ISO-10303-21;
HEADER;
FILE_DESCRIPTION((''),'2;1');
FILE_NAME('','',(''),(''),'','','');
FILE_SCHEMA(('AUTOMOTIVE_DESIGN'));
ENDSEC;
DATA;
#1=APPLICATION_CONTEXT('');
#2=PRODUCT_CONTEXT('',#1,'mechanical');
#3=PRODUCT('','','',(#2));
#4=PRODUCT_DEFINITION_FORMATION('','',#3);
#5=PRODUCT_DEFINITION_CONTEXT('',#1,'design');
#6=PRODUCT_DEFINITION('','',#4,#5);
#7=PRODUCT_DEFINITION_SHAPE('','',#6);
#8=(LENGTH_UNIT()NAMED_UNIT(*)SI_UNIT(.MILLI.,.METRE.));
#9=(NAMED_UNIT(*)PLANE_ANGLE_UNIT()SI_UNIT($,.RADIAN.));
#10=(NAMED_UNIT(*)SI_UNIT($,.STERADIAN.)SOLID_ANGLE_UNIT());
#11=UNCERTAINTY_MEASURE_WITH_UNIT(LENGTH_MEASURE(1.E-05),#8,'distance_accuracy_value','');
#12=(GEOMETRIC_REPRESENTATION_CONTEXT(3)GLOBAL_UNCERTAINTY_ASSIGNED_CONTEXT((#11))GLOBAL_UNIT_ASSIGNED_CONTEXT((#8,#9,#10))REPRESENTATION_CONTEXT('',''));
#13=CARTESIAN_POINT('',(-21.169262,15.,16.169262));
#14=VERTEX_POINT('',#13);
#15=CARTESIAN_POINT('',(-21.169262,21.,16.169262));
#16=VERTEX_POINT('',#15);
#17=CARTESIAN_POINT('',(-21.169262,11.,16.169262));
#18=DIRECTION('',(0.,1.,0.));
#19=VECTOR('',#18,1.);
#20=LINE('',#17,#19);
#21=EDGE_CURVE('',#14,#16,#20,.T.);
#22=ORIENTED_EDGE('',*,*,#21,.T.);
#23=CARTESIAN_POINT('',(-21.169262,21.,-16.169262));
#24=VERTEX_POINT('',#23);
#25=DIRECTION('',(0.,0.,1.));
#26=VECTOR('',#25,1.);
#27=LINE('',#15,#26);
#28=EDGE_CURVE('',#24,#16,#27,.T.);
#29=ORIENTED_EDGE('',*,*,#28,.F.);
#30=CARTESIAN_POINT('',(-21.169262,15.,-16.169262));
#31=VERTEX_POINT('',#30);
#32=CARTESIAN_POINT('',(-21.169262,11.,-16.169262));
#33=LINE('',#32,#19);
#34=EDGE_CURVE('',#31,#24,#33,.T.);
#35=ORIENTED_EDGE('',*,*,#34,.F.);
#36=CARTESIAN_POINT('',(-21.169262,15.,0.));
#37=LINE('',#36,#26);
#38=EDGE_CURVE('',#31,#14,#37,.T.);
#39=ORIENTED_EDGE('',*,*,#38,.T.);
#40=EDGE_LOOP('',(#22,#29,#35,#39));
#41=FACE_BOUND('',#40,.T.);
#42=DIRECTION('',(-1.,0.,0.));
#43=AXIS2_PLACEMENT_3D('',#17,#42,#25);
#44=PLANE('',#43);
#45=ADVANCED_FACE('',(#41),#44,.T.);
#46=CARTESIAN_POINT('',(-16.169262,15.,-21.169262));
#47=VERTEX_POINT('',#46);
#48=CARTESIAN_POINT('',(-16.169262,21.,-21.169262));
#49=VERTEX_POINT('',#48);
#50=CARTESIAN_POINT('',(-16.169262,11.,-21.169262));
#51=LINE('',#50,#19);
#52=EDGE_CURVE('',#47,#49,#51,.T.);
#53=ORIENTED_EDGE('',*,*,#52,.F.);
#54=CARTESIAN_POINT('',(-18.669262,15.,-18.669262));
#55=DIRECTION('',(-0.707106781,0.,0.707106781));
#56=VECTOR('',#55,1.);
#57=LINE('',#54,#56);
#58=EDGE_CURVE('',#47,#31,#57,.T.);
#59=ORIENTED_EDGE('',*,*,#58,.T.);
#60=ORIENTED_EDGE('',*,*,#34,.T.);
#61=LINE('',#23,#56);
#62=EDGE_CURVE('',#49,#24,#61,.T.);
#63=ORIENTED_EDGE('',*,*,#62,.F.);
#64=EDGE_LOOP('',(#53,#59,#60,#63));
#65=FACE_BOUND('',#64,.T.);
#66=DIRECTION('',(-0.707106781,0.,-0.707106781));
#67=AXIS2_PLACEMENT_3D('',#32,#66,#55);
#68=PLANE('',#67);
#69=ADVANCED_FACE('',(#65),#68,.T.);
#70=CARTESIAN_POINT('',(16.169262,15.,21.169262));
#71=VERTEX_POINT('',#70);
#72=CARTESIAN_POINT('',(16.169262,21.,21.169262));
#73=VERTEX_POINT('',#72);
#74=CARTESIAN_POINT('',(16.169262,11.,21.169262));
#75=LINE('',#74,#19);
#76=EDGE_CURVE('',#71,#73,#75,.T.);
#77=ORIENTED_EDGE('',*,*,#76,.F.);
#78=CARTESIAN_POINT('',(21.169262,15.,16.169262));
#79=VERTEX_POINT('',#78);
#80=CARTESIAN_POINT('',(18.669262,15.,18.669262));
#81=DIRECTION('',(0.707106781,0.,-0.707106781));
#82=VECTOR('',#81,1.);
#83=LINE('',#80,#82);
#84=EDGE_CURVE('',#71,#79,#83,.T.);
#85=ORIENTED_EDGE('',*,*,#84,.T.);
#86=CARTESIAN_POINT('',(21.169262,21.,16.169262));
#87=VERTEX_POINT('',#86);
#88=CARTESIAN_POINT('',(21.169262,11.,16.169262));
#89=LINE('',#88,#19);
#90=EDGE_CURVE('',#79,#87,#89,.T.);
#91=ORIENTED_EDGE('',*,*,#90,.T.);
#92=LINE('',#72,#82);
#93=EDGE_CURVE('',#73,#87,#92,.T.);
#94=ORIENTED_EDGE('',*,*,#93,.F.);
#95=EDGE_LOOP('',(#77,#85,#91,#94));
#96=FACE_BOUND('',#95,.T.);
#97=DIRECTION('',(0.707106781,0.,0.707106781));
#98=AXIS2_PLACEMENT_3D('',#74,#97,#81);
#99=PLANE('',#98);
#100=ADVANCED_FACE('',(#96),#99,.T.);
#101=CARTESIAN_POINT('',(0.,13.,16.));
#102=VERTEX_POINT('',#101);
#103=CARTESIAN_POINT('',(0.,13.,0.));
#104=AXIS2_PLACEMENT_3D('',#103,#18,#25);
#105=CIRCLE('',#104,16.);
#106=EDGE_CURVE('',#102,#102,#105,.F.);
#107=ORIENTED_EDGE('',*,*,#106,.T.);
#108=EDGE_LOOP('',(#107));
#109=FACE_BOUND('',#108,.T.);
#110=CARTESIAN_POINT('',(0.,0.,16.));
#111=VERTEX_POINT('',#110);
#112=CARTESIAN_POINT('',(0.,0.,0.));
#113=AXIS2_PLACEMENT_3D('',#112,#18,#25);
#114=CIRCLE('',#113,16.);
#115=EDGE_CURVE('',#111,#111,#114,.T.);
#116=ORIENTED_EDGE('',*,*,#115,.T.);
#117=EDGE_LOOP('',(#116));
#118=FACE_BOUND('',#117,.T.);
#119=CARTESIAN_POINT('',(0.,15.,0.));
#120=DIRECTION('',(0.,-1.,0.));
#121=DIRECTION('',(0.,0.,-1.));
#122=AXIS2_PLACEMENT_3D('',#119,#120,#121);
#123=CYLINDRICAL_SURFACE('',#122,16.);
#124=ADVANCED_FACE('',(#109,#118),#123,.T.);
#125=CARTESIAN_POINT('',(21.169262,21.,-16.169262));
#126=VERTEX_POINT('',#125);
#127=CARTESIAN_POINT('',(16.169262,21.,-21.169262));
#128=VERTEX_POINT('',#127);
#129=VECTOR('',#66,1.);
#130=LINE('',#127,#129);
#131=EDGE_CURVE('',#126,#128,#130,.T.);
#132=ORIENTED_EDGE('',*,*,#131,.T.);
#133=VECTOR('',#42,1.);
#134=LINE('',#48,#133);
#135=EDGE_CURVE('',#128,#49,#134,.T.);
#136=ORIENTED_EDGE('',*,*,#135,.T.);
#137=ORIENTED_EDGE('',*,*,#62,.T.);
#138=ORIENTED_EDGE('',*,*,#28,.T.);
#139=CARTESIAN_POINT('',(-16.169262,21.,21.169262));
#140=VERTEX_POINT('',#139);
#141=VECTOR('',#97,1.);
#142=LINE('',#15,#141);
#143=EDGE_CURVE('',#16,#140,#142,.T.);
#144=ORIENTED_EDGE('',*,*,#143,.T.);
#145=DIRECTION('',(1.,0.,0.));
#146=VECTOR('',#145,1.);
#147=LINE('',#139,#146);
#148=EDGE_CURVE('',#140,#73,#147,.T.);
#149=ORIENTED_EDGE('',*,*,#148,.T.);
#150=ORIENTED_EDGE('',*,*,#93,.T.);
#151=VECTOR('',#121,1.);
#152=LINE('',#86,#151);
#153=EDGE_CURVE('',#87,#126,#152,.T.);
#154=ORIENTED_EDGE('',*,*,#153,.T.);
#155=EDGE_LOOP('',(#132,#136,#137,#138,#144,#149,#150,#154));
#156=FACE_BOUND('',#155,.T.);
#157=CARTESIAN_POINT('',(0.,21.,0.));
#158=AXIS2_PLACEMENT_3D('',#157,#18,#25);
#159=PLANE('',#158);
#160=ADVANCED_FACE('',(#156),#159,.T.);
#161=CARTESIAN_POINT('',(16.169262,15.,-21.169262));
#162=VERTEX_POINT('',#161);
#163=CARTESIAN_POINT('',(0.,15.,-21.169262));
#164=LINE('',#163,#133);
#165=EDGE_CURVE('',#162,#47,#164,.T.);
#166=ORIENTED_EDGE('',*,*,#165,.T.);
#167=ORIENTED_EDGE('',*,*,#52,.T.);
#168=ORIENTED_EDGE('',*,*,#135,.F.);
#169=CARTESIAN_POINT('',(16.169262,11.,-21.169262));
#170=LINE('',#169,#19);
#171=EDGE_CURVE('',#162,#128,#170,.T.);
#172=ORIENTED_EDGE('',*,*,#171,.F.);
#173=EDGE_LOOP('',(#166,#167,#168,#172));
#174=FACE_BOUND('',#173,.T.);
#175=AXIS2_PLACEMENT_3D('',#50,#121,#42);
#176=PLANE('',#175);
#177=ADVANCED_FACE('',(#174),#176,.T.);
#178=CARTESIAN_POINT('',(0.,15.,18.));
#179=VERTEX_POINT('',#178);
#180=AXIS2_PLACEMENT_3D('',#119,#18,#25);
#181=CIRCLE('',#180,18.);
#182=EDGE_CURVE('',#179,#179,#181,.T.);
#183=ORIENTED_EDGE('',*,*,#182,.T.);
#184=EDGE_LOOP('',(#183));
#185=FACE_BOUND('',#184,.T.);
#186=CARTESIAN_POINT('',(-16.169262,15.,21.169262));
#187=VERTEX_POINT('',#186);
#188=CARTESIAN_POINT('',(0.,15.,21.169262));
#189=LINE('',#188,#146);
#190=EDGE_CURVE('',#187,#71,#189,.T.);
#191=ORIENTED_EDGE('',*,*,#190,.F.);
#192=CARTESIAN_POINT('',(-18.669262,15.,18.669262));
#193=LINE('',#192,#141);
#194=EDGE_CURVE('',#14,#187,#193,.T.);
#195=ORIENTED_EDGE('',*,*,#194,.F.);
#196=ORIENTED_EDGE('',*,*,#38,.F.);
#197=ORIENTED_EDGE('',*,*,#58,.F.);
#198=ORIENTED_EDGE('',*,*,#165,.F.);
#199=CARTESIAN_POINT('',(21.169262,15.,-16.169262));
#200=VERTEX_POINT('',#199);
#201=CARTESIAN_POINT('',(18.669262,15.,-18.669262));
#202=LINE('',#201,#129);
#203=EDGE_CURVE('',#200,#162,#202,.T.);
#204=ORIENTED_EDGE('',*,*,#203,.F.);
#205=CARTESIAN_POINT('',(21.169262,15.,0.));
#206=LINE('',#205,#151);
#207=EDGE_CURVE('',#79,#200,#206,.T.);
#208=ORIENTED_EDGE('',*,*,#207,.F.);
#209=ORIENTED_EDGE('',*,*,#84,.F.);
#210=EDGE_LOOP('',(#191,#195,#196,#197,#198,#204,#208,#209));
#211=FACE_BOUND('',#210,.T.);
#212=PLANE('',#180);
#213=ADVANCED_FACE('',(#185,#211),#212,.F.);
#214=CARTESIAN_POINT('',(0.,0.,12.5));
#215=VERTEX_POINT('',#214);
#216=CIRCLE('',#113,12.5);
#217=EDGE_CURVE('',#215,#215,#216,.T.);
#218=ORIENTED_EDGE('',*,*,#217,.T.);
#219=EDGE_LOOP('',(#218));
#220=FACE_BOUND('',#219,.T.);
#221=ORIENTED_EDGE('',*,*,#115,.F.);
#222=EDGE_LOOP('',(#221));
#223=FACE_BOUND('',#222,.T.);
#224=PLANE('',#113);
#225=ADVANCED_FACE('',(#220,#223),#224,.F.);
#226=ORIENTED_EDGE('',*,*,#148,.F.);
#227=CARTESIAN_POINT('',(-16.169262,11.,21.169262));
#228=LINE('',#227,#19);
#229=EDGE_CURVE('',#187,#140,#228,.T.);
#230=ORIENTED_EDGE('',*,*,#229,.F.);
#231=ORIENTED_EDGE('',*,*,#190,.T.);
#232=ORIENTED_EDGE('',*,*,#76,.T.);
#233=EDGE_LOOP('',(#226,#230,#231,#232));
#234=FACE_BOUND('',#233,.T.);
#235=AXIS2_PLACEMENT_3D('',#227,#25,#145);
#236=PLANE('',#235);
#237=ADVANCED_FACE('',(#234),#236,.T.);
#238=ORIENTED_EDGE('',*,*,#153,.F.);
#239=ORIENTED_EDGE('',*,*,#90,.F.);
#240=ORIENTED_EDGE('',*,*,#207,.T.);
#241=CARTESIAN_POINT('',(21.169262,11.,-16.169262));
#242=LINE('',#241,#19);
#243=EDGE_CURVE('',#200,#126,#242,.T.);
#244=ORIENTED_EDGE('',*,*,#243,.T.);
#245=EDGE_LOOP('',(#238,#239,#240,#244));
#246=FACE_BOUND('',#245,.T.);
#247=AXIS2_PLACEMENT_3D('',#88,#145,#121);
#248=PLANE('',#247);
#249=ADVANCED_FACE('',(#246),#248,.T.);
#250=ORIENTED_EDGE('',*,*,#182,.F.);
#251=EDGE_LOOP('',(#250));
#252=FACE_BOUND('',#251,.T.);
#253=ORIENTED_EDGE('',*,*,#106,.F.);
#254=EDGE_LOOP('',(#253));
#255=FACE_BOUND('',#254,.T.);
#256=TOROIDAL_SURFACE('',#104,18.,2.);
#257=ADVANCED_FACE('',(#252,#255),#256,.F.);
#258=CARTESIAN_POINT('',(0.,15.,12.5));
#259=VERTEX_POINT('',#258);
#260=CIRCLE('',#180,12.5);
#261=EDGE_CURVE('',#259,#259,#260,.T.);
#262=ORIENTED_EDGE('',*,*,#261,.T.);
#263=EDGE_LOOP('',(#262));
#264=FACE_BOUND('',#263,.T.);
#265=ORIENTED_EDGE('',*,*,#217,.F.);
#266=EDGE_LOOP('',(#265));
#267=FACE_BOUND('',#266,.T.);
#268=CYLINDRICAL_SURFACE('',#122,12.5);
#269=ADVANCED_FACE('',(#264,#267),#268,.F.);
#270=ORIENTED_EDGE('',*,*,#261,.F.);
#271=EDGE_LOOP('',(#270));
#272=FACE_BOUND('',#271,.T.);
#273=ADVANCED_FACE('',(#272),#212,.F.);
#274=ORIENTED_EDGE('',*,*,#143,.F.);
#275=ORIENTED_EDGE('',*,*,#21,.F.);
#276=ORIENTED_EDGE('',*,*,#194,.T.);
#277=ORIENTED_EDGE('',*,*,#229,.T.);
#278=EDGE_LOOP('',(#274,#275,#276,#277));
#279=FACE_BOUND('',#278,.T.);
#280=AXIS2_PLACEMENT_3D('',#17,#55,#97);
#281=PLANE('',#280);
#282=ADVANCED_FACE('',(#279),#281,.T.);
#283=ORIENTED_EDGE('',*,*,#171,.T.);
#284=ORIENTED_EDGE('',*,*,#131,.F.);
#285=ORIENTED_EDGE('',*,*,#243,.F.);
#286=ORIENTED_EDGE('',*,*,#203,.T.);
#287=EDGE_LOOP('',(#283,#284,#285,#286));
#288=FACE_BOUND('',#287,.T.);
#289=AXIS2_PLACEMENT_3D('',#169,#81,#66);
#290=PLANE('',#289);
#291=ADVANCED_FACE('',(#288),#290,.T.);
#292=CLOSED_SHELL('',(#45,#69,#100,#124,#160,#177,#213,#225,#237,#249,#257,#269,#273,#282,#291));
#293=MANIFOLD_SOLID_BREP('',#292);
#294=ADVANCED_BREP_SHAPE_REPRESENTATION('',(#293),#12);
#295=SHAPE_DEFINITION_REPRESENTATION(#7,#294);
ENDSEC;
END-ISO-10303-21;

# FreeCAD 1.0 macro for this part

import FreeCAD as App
import Part
import Sketcher

V = App.Vector


def edges_at(feature, points):
    """Names of the edges that pass closest to the given points."""
    edges = feature.Shape.Edges
    near = lambda p: min(range(len(edges)), key=lambda i: edges[i].distToShape(Part.Vertex(*p))[0])
    return sorted({f"Edge{near(p) + 1}" for p in points})

doc = App.newDocument("Part")
body = doc.addObject("PartDesign::Body", "Body")

# Sketch on XZ plane
sketch1 = doc.addObject("Sketcher::SketchObject", "Sketch")
body.addObject(sketch1)
sketch1.AttachmentSupport = (doc.XZ_Plane, [""])
sketch1.MapMode = "FlatFace"
sketch1.addGeometry([
    Part.Circle(V(0, 0, 0), V(0, 0, 1), 16),
    Part.Circle(V(0, 0, 0), V(0, 0, 1), 12),
], False)
sketch1.addConstraint([
    Sketcher.Constraint("Coincident", 0, 3, -1, 1),
    Sketcher.Constraint("Coincident", 1, 3, -1, 1),
    Sketcher.Constraint("Diameter", 0, 32.0),
    Sketcher.Constraint("Diameter", 1, 25.0),
])
pad1 = doc.addObject("PartDesign::Pad", "Pad")
body.addObject(pad1)
pad1.Profile = sketch1
pad1.Length = 15
pad1.Reversed = True

# Sketch on XZ plane
sketch2 = doc.addObject("Sketcher::SketchObject", "Sketch001")
body.addObject(sketch2)
sketch2.AttachmentSupport = (doc.XZ_Plane, [""])
sketch2.MapMode = "FlatFace"
sketch2.AttachmentOffset = App.Placement(V(0, 0, -15), App.Rotation())
sketch2.addGeometry(Part.Circle(V(0, 0, 0), V(0, 0, 1), 30), False)
sketch2.addConstraint([
    Sketcher.Constraint("Coincident", 0, 3, -1, 1),
    Sketcher.Constraint("Diameter", 0, 60.0),
])
pad2 = doc.addObject("PartDesign::Pad", "Pad001")
body.addObject(pad2)
pad2.Profile = sketch2
pad2.Length = 6
pad2.Reversed = True
doc.recompute()

fillet = doc.addObject("PartDesign::Fillet", "Fillet")
body.addObject(fillet)
fillet.Base = (pad2, edges_at(pad2, [(0, 15, -16)]))
fillet.Radius = 2

# Sketch on XZ plane
sketch3 = doc.addObject("Sketcher::SketchObject", "Sketch002")
body.addObject(sketch3)
sketch3.AttachmentSupport = (doc.XZ_Plane, [""])
sketch3.MapMode = "FlatFace"
sketch3.AttachmentOffset = App.Placement(V(0, 0, -21), App.Rotation())
sketch3.addGeometry([
    Part.LineSegment(V(-34, -34, 0), V(-34, 34, 0)),  # 0
    Part.LineSegment(V(-34, 34, 0), V(34, 34, 0)),  # 1
    Part.LineSegment(V(34, 34, 0), V(34, -34, 0)),  # 2
    Part.LineSegment(V(34, -34, 0), V(-34, -34, 0)),  # 3
    Part.LineSegment(V(-21, 16, 0), V(-21, -16, 0)),  # 4
    Part.LineSegment(V(-21, -16, 0), V(-16, -21, 0)),  # 5
    Part.LineSegment(V(-16, -21, 0), V(16, -21, 0)),  # 6
    Part.LineSegment(V(16, -21, 0), V(21, -16, 0)),  # 7
    Part.LineSegment(V(21, -16, 0), V(21, 16, 0)),  # 8
    Part.LineSegment(V(21, 16, 0), V(16, 21, 0)),  # 9
    Part.LineSegment(V(16, 21, 0), V(-16, 21, 0)),  # 10
    Part.LineSegment(V(-16, 21, 0), V(-21, 16, 0)),  # 11
], False)
sketch3.addConstraint([
    Sketcher.Constraint("Coincident", 0, 2, 1, 1),
    Sketcher.Constraint("Coincident", 1, 2, 2, 1),
    Sketcher.Constraint("Coincident", 2, 2, 3, 1),
    Sketcher.Constraint("Coincident", 3, 2, 0, 1),
    Sketcher.Constraint("Coincident", 4, 2, 5, 1),
    Sketcher.Constraint("Coincident", 5, 2, 6, 1),
    Sketcher.Constraint("Coincident", 6, 2, 7, 1),
    Sketcher.Constraint("Coincident", 7, 2, 8, 1),
    Sketcher.Constraint("Coincident", 8, 2, 9, 1),
    Sketcher.Constraint("Coincident", 9, 2, 10, 1),
    Sketcher.Constraint("Coincident", 10, 2, 11, 1),
    Sketcher.Constraint("Coincident", 11, 2, 4, 1),
    Sketcher.Constraint("Vertical", 0),
    Sketcher.Constraint("Horizontal", 1),
    Sketcher.Constraint("Vertical", 2),
    Sketcher.Constraint("Horizontal", 3),
    Sketcher.Constraint("Vertical", 4),
    Sketcher.Constraint("Horizontal", 6),
    Sketcher.Constraint("Vertical", 8),
    Sketcher.Constraint("Horizontal", 10),
    Sketcher.Constraint("Symmetric", 0, 2, 2, 2, -1, 1),
    Sketcher.Constraint("Symmetric", 4, 2, 8, 2, -1, 1),
    Sketcher.Constraint("Symmetric", 5, 2, 9, 2, -1, 1),
    Sketcher.Constraint("Perpendicular", 5, 7),
    Sketcher.Constraint("Perpendicular", 9, 11),
    Sketcher.Constraint("Horizontal", 4, 2, 7, 2),
    Sketcher.Constraint("Horizontal", 8, 2, 11, 2),
    Sketcher.Constraint("Vertical", 6, 2, 9, 2),
    Sketcher.Constraint("Equal", 3, 0),
    Sketcher.Constraint("Equal", 10, 4),
    Sketcher.Constraint("DistanceX", 4, 2, 5, 2, 5.0),
    Sketcher.Constraint("DistanceX", 1, 1, 1, 2, 68.746937),
    Sketcher.Constraint("DistanceX", 6, 1, 6, 2, 32.338524),
])
pocket1 = doc.addObject("PartDesign::Pocket", "Pocket")
body.addObject(pocket1)
pocket1.Profile = sketch3
pocket1.Length = 10
pocket1.Reversed = True

doc.recompute()
